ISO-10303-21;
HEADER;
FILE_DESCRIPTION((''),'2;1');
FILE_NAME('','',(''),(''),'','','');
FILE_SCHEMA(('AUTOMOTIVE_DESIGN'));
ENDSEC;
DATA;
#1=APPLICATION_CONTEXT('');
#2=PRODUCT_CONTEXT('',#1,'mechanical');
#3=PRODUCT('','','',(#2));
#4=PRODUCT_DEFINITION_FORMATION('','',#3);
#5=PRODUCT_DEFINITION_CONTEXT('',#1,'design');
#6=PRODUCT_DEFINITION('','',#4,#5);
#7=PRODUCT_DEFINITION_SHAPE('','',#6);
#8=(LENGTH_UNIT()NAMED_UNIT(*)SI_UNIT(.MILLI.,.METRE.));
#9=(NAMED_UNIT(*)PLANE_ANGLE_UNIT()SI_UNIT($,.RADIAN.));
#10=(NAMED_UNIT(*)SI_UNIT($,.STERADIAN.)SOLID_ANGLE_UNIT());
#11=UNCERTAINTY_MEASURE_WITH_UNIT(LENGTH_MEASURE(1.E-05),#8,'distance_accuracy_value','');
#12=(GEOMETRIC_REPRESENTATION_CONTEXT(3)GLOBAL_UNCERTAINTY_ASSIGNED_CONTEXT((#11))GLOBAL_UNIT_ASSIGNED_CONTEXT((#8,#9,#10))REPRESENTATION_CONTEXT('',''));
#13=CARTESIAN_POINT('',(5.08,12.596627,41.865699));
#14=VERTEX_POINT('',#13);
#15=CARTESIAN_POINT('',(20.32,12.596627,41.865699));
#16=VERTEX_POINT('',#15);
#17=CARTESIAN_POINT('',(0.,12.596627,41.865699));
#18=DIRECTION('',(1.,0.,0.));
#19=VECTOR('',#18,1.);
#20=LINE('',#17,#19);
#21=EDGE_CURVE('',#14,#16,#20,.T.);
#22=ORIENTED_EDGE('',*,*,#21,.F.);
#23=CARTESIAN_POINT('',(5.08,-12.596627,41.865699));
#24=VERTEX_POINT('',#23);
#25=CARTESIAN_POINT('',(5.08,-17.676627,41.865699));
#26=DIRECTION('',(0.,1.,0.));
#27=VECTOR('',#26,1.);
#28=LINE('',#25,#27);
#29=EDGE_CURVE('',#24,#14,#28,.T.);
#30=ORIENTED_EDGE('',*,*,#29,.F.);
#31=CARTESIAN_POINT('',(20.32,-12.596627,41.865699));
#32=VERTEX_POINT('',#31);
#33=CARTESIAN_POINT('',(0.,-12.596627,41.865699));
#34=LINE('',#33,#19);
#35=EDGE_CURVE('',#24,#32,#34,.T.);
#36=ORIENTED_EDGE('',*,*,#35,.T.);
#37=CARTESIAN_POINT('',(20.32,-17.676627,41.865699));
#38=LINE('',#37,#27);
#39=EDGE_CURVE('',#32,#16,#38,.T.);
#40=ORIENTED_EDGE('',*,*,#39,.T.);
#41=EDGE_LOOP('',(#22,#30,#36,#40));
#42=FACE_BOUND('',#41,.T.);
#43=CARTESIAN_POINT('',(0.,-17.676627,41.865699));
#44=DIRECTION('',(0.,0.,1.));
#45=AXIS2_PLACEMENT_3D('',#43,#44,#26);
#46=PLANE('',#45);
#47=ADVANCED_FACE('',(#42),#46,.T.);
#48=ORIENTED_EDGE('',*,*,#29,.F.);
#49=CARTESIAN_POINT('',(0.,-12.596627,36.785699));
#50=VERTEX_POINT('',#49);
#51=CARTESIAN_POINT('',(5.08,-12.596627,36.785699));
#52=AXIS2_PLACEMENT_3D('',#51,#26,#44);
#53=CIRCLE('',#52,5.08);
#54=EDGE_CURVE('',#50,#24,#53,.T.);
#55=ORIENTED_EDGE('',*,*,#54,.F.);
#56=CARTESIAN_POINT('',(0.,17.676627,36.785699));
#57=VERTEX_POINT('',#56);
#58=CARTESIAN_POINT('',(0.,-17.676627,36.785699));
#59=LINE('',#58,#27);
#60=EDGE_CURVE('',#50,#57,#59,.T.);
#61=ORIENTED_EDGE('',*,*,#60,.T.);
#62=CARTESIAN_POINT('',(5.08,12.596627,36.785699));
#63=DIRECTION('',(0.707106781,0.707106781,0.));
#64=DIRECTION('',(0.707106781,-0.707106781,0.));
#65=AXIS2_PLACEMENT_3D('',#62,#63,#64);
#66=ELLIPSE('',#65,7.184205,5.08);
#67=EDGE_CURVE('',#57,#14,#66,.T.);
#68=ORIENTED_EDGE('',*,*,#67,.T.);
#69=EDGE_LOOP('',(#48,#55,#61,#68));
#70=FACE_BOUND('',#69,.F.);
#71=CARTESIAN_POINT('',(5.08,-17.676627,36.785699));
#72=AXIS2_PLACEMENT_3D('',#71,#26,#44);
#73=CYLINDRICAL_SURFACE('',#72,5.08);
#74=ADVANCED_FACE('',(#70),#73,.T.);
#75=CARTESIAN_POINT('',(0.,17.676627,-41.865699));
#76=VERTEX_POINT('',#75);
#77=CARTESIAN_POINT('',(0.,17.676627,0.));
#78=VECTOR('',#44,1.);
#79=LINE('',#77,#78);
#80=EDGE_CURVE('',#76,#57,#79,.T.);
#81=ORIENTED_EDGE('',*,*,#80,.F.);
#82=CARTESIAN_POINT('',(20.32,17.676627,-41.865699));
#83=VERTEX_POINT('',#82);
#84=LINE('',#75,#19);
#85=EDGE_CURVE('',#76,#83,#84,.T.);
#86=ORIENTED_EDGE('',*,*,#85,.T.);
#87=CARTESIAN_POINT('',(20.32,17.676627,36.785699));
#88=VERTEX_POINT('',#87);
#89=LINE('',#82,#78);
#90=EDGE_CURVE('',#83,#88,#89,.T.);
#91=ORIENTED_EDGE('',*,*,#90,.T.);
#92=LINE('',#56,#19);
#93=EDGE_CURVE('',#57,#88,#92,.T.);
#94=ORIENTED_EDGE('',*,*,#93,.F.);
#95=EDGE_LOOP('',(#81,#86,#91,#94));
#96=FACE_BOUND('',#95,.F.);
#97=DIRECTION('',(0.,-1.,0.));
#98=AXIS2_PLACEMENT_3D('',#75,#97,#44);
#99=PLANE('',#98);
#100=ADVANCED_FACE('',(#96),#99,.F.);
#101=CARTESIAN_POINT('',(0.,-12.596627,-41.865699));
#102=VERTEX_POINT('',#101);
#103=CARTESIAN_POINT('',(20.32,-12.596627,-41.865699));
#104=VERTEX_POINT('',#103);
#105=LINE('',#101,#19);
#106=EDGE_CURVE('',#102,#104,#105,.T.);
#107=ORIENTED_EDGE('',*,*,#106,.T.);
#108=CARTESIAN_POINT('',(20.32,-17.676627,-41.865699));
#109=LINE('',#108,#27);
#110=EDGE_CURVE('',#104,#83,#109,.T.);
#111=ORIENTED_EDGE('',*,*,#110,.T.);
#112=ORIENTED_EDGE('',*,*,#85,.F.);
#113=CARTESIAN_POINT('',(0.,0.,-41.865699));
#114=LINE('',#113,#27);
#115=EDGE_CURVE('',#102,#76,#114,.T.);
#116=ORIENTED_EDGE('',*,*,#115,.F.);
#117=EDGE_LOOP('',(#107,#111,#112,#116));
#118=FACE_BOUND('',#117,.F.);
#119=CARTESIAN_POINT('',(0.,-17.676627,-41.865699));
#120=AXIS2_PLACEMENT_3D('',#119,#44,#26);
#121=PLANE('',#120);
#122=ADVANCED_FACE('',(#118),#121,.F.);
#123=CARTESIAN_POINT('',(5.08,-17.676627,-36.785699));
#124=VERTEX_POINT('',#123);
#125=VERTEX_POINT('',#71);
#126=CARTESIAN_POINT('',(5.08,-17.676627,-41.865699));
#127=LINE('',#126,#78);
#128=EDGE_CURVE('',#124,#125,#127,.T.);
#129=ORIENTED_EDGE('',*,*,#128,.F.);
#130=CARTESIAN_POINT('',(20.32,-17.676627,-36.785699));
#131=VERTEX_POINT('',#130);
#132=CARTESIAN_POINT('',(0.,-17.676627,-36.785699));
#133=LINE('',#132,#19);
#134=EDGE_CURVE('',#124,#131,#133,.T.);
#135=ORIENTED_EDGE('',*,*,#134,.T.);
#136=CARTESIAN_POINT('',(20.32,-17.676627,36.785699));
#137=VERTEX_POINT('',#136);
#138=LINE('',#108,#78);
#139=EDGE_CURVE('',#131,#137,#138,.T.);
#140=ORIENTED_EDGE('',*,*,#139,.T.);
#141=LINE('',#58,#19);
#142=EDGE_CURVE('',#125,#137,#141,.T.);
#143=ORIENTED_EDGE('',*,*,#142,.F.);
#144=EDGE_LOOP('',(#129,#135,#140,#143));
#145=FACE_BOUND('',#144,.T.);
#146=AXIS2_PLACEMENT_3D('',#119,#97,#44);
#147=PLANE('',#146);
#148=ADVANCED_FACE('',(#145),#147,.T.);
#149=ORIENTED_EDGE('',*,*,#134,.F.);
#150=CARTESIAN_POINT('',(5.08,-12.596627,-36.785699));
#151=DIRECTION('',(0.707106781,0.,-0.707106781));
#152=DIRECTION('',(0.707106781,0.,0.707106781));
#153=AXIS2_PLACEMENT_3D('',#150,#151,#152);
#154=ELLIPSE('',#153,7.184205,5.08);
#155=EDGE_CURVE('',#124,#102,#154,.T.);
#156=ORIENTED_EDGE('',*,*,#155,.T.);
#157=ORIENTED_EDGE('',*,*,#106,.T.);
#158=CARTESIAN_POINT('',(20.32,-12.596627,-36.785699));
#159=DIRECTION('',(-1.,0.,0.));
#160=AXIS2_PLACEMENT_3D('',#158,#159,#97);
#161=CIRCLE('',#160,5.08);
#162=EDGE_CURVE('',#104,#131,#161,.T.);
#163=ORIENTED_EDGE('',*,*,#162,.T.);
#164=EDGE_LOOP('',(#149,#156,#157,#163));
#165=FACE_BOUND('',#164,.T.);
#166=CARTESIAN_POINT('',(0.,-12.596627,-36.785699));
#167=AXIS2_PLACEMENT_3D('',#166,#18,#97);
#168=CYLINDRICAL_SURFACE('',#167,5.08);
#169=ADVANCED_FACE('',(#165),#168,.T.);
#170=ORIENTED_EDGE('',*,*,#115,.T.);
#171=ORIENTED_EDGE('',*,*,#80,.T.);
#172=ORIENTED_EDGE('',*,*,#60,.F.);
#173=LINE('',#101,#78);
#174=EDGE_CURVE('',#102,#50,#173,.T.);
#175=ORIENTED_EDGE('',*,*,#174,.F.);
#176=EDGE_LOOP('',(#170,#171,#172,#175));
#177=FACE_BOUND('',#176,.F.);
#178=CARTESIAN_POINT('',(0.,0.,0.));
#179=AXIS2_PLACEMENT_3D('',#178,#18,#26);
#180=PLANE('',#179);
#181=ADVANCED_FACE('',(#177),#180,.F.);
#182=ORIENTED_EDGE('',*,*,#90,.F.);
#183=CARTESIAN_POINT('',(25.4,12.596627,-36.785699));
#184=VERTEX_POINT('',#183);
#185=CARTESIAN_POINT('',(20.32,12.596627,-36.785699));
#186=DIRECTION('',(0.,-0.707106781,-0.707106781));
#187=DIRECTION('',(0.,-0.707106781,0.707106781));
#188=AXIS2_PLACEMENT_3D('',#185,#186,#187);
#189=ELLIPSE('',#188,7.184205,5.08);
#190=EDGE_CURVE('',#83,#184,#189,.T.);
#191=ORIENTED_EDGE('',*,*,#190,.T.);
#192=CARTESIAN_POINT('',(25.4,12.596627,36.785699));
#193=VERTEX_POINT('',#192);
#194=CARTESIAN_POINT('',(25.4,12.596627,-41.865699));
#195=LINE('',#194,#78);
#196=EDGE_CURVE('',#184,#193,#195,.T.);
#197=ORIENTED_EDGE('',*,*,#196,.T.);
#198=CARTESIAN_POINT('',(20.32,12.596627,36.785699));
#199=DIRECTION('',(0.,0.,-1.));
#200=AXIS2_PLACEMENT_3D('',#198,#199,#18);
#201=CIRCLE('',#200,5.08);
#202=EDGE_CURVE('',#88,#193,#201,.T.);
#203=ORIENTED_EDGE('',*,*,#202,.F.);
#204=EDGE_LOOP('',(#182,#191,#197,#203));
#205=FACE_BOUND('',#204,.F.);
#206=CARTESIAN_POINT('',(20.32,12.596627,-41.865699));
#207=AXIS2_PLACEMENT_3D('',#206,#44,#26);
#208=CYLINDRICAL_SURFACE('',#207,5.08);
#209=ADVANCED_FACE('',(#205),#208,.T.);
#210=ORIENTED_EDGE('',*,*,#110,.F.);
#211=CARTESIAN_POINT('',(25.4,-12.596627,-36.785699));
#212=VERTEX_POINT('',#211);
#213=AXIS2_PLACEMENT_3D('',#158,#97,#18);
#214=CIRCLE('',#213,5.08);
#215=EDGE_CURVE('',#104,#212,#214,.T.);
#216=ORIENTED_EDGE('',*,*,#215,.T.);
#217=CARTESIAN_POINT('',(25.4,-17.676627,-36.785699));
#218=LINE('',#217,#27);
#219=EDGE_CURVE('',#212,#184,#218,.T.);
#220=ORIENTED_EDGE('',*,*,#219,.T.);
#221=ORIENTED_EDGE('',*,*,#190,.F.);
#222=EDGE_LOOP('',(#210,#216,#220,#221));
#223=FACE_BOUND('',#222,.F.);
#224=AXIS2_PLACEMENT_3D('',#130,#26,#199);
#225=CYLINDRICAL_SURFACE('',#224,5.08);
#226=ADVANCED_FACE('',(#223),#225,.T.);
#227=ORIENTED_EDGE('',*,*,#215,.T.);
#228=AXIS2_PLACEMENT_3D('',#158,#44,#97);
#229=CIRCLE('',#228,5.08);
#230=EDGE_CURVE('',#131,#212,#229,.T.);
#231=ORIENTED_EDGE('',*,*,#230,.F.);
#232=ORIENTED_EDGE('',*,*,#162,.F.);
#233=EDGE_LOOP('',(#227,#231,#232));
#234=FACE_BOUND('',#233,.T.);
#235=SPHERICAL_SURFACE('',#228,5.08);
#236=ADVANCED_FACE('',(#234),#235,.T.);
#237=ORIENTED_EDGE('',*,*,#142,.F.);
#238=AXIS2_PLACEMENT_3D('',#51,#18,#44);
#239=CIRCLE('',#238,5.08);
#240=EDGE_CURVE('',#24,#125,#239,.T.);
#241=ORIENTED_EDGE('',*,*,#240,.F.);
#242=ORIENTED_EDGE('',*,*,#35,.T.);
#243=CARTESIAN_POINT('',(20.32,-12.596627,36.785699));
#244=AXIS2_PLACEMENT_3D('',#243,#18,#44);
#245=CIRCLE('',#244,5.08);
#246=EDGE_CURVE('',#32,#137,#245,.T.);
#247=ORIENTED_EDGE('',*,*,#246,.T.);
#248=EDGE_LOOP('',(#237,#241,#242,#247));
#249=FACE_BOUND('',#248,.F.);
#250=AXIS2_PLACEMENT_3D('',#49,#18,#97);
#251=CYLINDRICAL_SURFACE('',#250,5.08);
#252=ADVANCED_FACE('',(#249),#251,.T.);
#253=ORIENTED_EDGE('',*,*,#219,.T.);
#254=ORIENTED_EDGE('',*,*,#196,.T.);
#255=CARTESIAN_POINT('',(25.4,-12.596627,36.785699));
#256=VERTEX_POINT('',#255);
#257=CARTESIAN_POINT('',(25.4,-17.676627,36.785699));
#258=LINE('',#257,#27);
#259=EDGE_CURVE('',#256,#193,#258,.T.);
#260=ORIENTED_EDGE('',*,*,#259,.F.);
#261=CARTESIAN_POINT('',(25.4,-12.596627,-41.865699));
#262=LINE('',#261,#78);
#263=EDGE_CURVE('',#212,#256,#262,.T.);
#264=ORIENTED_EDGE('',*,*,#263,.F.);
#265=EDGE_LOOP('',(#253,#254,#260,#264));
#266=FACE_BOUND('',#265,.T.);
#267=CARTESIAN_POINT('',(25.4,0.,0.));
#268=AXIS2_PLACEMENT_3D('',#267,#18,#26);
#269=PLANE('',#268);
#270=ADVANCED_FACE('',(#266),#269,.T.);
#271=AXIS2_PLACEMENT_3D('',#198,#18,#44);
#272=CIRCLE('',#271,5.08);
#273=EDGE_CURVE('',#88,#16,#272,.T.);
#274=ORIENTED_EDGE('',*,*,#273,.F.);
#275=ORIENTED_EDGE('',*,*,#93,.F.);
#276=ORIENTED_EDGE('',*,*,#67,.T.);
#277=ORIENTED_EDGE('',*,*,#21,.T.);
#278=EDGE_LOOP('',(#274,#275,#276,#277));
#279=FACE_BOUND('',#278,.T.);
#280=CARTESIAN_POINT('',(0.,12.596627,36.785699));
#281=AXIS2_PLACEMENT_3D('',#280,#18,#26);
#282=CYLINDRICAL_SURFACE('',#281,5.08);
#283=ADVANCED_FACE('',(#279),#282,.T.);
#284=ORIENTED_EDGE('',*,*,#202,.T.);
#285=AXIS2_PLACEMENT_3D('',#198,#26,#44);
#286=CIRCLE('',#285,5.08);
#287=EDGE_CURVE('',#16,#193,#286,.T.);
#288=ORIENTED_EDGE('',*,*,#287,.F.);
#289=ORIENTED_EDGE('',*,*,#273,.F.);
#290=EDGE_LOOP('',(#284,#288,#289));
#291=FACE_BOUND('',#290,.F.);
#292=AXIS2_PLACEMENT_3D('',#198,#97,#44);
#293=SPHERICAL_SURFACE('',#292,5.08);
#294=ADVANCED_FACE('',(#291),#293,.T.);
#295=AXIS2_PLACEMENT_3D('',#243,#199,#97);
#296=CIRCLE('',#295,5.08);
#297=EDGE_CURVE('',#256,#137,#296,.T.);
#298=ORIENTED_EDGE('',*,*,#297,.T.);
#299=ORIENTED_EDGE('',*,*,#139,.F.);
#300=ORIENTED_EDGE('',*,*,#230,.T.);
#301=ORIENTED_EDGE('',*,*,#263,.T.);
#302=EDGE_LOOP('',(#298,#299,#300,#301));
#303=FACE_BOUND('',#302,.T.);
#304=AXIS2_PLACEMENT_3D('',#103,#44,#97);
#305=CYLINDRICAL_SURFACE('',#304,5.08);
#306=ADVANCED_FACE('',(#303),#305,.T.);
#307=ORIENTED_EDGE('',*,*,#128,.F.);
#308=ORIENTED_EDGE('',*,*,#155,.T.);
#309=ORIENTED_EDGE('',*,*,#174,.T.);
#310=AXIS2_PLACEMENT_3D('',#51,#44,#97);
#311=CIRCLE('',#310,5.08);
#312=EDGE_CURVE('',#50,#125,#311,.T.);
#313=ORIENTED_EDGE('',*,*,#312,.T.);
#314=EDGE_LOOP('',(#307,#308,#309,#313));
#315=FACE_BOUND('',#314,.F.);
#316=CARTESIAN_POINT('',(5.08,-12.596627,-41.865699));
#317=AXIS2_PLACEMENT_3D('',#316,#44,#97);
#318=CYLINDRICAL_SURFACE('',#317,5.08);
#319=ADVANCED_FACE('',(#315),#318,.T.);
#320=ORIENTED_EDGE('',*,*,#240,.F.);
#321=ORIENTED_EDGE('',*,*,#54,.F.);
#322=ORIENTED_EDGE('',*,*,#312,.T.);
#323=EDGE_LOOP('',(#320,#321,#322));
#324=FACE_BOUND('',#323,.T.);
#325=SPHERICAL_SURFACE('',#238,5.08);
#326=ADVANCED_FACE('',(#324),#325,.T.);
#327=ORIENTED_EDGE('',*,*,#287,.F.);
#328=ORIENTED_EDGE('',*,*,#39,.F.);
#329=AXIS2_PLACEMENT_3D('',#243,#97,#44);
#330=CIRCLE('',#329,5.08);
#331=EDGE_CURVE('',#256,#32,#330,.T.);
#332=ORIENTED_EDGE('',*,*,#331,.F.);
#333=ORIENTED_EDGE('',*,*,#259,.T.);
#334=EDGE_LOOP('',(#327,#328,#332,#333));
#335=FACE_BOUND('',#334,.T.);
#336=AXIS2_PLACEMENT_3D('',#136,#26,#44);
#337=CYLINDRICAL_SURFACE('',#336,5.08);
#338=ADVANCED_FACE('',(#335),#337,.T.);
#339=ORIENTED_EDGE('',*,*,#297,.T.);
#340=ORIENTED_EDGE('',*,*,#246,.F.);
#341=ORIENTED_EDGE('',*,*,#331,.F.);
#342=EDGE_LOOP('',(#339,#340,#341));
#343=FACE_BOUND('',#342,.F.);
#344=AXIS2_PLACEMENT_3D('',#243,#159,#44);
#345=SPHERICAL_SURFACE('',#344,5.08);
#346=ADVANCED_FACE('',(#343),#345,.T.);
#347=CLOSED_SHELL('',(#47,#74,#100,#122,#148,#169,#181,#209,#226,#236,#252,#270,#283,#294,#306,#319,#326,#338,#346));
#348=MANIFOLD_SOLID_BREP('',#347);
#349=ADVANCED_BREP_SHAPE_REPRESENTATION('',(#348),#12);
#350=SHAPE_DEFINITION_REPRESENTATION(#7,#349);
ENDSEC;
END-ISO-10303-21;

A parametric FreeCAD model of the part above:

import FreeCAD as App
import Part
import Sketcher

V = App.Vector
Q = App.Units.Quantity


def edges_at(feature, points):
    """Names of the edges that pass closest to the given points."""
    edges = feature.Shape.Edges
    near = lambda p: min(range(len(edges)), key=lambda i: edges[i].distToShape(Part.Vertex(*p))[0])
    return sorted({f"Edge{near(p) + 1}" for p in points})

doc = App.newDocument("Part")
body = doc.addObject("PartDesign::Body", "Body")

# Sketch on YZ plane
sketch1 = doc.addObject("Sketcher::SketchObject", "Sketch")
body.addObject(sketch1)
sketch1.AttachmentSupport = (doc.YZ_Plane, [""])
sketch1.MapMode = "FlatFace"
sketch1.addGeometry([
    Part.LineSegment(V(-17.676627, 41.865699, 0), V(-17.676627, -41.865699, 0)),
    Part.LineSegment(V(-17.676627, -41.865699, 0), V(17.676627, -41.865699, 0)),
    Part.LineSegment(V(17.676627, -41.865699, 0), V(17.676627, 41.865699, 0)),
    Part.LineSegment(V(17.676627, 41.865699, 0), V(-17.676627, 41.865699, 0)),
], False)
sketch1.addConstraint([
    Sketcher.Constraint("Coincident", 0, 2, 1, 1),
    Sketcher.Constraint("Coincident", 1, 2, 2, 1),
    Sketcher.Constraint("Coincident", 2, 2, 3, 1),
    Sketcher.Constraint("Coincident", 3, 2, 0, 1),
    Sketcher.Constraint("Vertical", 0),
    Sketcher.Constraint("Horizontal", 1),
    Sketcher.Constraint("Vertical", 2),
    Sketcher.Constraint("Horizontal", 3),
    Sketcher.Constraint("Symmetric", 0, 2, 2, 2, -1, 1),
    Sketcher.Constraint("DistanceY", 0, 2, 0, 1, 83.731398),
    Sketcher.Constraint("DistanceX", 1, 1, 1, 2, 35.353254),
])
pad1 = doc.addObject("PartDesign::Pad", "Pad")
body.addObject(pad1)
pad1.Profile = sketch1
pad1.Length = Q("1 in")
doc.recompute()

fillet = doc.addObject("PartDesign::Fillet", "Fillet")
body.addObject(fillet)
fillet.Base = (pad1, edges_at(pad1, [
    (12.7, -17.677, 41.866),
    (25.4, 0, 41.866),
    (12.7, 17.677, 41.866),
    (0, 0, 41.866),
    (25.4, -17.677, 0),
    (25.4, 17.677, 0),
    (0, -17.677, 0),
    (12.7, -17.677, -41.866),
    (25.4, 0, -41.866),
]))
fillet.Radius = Q("0.2 in")

doc.recompute()
